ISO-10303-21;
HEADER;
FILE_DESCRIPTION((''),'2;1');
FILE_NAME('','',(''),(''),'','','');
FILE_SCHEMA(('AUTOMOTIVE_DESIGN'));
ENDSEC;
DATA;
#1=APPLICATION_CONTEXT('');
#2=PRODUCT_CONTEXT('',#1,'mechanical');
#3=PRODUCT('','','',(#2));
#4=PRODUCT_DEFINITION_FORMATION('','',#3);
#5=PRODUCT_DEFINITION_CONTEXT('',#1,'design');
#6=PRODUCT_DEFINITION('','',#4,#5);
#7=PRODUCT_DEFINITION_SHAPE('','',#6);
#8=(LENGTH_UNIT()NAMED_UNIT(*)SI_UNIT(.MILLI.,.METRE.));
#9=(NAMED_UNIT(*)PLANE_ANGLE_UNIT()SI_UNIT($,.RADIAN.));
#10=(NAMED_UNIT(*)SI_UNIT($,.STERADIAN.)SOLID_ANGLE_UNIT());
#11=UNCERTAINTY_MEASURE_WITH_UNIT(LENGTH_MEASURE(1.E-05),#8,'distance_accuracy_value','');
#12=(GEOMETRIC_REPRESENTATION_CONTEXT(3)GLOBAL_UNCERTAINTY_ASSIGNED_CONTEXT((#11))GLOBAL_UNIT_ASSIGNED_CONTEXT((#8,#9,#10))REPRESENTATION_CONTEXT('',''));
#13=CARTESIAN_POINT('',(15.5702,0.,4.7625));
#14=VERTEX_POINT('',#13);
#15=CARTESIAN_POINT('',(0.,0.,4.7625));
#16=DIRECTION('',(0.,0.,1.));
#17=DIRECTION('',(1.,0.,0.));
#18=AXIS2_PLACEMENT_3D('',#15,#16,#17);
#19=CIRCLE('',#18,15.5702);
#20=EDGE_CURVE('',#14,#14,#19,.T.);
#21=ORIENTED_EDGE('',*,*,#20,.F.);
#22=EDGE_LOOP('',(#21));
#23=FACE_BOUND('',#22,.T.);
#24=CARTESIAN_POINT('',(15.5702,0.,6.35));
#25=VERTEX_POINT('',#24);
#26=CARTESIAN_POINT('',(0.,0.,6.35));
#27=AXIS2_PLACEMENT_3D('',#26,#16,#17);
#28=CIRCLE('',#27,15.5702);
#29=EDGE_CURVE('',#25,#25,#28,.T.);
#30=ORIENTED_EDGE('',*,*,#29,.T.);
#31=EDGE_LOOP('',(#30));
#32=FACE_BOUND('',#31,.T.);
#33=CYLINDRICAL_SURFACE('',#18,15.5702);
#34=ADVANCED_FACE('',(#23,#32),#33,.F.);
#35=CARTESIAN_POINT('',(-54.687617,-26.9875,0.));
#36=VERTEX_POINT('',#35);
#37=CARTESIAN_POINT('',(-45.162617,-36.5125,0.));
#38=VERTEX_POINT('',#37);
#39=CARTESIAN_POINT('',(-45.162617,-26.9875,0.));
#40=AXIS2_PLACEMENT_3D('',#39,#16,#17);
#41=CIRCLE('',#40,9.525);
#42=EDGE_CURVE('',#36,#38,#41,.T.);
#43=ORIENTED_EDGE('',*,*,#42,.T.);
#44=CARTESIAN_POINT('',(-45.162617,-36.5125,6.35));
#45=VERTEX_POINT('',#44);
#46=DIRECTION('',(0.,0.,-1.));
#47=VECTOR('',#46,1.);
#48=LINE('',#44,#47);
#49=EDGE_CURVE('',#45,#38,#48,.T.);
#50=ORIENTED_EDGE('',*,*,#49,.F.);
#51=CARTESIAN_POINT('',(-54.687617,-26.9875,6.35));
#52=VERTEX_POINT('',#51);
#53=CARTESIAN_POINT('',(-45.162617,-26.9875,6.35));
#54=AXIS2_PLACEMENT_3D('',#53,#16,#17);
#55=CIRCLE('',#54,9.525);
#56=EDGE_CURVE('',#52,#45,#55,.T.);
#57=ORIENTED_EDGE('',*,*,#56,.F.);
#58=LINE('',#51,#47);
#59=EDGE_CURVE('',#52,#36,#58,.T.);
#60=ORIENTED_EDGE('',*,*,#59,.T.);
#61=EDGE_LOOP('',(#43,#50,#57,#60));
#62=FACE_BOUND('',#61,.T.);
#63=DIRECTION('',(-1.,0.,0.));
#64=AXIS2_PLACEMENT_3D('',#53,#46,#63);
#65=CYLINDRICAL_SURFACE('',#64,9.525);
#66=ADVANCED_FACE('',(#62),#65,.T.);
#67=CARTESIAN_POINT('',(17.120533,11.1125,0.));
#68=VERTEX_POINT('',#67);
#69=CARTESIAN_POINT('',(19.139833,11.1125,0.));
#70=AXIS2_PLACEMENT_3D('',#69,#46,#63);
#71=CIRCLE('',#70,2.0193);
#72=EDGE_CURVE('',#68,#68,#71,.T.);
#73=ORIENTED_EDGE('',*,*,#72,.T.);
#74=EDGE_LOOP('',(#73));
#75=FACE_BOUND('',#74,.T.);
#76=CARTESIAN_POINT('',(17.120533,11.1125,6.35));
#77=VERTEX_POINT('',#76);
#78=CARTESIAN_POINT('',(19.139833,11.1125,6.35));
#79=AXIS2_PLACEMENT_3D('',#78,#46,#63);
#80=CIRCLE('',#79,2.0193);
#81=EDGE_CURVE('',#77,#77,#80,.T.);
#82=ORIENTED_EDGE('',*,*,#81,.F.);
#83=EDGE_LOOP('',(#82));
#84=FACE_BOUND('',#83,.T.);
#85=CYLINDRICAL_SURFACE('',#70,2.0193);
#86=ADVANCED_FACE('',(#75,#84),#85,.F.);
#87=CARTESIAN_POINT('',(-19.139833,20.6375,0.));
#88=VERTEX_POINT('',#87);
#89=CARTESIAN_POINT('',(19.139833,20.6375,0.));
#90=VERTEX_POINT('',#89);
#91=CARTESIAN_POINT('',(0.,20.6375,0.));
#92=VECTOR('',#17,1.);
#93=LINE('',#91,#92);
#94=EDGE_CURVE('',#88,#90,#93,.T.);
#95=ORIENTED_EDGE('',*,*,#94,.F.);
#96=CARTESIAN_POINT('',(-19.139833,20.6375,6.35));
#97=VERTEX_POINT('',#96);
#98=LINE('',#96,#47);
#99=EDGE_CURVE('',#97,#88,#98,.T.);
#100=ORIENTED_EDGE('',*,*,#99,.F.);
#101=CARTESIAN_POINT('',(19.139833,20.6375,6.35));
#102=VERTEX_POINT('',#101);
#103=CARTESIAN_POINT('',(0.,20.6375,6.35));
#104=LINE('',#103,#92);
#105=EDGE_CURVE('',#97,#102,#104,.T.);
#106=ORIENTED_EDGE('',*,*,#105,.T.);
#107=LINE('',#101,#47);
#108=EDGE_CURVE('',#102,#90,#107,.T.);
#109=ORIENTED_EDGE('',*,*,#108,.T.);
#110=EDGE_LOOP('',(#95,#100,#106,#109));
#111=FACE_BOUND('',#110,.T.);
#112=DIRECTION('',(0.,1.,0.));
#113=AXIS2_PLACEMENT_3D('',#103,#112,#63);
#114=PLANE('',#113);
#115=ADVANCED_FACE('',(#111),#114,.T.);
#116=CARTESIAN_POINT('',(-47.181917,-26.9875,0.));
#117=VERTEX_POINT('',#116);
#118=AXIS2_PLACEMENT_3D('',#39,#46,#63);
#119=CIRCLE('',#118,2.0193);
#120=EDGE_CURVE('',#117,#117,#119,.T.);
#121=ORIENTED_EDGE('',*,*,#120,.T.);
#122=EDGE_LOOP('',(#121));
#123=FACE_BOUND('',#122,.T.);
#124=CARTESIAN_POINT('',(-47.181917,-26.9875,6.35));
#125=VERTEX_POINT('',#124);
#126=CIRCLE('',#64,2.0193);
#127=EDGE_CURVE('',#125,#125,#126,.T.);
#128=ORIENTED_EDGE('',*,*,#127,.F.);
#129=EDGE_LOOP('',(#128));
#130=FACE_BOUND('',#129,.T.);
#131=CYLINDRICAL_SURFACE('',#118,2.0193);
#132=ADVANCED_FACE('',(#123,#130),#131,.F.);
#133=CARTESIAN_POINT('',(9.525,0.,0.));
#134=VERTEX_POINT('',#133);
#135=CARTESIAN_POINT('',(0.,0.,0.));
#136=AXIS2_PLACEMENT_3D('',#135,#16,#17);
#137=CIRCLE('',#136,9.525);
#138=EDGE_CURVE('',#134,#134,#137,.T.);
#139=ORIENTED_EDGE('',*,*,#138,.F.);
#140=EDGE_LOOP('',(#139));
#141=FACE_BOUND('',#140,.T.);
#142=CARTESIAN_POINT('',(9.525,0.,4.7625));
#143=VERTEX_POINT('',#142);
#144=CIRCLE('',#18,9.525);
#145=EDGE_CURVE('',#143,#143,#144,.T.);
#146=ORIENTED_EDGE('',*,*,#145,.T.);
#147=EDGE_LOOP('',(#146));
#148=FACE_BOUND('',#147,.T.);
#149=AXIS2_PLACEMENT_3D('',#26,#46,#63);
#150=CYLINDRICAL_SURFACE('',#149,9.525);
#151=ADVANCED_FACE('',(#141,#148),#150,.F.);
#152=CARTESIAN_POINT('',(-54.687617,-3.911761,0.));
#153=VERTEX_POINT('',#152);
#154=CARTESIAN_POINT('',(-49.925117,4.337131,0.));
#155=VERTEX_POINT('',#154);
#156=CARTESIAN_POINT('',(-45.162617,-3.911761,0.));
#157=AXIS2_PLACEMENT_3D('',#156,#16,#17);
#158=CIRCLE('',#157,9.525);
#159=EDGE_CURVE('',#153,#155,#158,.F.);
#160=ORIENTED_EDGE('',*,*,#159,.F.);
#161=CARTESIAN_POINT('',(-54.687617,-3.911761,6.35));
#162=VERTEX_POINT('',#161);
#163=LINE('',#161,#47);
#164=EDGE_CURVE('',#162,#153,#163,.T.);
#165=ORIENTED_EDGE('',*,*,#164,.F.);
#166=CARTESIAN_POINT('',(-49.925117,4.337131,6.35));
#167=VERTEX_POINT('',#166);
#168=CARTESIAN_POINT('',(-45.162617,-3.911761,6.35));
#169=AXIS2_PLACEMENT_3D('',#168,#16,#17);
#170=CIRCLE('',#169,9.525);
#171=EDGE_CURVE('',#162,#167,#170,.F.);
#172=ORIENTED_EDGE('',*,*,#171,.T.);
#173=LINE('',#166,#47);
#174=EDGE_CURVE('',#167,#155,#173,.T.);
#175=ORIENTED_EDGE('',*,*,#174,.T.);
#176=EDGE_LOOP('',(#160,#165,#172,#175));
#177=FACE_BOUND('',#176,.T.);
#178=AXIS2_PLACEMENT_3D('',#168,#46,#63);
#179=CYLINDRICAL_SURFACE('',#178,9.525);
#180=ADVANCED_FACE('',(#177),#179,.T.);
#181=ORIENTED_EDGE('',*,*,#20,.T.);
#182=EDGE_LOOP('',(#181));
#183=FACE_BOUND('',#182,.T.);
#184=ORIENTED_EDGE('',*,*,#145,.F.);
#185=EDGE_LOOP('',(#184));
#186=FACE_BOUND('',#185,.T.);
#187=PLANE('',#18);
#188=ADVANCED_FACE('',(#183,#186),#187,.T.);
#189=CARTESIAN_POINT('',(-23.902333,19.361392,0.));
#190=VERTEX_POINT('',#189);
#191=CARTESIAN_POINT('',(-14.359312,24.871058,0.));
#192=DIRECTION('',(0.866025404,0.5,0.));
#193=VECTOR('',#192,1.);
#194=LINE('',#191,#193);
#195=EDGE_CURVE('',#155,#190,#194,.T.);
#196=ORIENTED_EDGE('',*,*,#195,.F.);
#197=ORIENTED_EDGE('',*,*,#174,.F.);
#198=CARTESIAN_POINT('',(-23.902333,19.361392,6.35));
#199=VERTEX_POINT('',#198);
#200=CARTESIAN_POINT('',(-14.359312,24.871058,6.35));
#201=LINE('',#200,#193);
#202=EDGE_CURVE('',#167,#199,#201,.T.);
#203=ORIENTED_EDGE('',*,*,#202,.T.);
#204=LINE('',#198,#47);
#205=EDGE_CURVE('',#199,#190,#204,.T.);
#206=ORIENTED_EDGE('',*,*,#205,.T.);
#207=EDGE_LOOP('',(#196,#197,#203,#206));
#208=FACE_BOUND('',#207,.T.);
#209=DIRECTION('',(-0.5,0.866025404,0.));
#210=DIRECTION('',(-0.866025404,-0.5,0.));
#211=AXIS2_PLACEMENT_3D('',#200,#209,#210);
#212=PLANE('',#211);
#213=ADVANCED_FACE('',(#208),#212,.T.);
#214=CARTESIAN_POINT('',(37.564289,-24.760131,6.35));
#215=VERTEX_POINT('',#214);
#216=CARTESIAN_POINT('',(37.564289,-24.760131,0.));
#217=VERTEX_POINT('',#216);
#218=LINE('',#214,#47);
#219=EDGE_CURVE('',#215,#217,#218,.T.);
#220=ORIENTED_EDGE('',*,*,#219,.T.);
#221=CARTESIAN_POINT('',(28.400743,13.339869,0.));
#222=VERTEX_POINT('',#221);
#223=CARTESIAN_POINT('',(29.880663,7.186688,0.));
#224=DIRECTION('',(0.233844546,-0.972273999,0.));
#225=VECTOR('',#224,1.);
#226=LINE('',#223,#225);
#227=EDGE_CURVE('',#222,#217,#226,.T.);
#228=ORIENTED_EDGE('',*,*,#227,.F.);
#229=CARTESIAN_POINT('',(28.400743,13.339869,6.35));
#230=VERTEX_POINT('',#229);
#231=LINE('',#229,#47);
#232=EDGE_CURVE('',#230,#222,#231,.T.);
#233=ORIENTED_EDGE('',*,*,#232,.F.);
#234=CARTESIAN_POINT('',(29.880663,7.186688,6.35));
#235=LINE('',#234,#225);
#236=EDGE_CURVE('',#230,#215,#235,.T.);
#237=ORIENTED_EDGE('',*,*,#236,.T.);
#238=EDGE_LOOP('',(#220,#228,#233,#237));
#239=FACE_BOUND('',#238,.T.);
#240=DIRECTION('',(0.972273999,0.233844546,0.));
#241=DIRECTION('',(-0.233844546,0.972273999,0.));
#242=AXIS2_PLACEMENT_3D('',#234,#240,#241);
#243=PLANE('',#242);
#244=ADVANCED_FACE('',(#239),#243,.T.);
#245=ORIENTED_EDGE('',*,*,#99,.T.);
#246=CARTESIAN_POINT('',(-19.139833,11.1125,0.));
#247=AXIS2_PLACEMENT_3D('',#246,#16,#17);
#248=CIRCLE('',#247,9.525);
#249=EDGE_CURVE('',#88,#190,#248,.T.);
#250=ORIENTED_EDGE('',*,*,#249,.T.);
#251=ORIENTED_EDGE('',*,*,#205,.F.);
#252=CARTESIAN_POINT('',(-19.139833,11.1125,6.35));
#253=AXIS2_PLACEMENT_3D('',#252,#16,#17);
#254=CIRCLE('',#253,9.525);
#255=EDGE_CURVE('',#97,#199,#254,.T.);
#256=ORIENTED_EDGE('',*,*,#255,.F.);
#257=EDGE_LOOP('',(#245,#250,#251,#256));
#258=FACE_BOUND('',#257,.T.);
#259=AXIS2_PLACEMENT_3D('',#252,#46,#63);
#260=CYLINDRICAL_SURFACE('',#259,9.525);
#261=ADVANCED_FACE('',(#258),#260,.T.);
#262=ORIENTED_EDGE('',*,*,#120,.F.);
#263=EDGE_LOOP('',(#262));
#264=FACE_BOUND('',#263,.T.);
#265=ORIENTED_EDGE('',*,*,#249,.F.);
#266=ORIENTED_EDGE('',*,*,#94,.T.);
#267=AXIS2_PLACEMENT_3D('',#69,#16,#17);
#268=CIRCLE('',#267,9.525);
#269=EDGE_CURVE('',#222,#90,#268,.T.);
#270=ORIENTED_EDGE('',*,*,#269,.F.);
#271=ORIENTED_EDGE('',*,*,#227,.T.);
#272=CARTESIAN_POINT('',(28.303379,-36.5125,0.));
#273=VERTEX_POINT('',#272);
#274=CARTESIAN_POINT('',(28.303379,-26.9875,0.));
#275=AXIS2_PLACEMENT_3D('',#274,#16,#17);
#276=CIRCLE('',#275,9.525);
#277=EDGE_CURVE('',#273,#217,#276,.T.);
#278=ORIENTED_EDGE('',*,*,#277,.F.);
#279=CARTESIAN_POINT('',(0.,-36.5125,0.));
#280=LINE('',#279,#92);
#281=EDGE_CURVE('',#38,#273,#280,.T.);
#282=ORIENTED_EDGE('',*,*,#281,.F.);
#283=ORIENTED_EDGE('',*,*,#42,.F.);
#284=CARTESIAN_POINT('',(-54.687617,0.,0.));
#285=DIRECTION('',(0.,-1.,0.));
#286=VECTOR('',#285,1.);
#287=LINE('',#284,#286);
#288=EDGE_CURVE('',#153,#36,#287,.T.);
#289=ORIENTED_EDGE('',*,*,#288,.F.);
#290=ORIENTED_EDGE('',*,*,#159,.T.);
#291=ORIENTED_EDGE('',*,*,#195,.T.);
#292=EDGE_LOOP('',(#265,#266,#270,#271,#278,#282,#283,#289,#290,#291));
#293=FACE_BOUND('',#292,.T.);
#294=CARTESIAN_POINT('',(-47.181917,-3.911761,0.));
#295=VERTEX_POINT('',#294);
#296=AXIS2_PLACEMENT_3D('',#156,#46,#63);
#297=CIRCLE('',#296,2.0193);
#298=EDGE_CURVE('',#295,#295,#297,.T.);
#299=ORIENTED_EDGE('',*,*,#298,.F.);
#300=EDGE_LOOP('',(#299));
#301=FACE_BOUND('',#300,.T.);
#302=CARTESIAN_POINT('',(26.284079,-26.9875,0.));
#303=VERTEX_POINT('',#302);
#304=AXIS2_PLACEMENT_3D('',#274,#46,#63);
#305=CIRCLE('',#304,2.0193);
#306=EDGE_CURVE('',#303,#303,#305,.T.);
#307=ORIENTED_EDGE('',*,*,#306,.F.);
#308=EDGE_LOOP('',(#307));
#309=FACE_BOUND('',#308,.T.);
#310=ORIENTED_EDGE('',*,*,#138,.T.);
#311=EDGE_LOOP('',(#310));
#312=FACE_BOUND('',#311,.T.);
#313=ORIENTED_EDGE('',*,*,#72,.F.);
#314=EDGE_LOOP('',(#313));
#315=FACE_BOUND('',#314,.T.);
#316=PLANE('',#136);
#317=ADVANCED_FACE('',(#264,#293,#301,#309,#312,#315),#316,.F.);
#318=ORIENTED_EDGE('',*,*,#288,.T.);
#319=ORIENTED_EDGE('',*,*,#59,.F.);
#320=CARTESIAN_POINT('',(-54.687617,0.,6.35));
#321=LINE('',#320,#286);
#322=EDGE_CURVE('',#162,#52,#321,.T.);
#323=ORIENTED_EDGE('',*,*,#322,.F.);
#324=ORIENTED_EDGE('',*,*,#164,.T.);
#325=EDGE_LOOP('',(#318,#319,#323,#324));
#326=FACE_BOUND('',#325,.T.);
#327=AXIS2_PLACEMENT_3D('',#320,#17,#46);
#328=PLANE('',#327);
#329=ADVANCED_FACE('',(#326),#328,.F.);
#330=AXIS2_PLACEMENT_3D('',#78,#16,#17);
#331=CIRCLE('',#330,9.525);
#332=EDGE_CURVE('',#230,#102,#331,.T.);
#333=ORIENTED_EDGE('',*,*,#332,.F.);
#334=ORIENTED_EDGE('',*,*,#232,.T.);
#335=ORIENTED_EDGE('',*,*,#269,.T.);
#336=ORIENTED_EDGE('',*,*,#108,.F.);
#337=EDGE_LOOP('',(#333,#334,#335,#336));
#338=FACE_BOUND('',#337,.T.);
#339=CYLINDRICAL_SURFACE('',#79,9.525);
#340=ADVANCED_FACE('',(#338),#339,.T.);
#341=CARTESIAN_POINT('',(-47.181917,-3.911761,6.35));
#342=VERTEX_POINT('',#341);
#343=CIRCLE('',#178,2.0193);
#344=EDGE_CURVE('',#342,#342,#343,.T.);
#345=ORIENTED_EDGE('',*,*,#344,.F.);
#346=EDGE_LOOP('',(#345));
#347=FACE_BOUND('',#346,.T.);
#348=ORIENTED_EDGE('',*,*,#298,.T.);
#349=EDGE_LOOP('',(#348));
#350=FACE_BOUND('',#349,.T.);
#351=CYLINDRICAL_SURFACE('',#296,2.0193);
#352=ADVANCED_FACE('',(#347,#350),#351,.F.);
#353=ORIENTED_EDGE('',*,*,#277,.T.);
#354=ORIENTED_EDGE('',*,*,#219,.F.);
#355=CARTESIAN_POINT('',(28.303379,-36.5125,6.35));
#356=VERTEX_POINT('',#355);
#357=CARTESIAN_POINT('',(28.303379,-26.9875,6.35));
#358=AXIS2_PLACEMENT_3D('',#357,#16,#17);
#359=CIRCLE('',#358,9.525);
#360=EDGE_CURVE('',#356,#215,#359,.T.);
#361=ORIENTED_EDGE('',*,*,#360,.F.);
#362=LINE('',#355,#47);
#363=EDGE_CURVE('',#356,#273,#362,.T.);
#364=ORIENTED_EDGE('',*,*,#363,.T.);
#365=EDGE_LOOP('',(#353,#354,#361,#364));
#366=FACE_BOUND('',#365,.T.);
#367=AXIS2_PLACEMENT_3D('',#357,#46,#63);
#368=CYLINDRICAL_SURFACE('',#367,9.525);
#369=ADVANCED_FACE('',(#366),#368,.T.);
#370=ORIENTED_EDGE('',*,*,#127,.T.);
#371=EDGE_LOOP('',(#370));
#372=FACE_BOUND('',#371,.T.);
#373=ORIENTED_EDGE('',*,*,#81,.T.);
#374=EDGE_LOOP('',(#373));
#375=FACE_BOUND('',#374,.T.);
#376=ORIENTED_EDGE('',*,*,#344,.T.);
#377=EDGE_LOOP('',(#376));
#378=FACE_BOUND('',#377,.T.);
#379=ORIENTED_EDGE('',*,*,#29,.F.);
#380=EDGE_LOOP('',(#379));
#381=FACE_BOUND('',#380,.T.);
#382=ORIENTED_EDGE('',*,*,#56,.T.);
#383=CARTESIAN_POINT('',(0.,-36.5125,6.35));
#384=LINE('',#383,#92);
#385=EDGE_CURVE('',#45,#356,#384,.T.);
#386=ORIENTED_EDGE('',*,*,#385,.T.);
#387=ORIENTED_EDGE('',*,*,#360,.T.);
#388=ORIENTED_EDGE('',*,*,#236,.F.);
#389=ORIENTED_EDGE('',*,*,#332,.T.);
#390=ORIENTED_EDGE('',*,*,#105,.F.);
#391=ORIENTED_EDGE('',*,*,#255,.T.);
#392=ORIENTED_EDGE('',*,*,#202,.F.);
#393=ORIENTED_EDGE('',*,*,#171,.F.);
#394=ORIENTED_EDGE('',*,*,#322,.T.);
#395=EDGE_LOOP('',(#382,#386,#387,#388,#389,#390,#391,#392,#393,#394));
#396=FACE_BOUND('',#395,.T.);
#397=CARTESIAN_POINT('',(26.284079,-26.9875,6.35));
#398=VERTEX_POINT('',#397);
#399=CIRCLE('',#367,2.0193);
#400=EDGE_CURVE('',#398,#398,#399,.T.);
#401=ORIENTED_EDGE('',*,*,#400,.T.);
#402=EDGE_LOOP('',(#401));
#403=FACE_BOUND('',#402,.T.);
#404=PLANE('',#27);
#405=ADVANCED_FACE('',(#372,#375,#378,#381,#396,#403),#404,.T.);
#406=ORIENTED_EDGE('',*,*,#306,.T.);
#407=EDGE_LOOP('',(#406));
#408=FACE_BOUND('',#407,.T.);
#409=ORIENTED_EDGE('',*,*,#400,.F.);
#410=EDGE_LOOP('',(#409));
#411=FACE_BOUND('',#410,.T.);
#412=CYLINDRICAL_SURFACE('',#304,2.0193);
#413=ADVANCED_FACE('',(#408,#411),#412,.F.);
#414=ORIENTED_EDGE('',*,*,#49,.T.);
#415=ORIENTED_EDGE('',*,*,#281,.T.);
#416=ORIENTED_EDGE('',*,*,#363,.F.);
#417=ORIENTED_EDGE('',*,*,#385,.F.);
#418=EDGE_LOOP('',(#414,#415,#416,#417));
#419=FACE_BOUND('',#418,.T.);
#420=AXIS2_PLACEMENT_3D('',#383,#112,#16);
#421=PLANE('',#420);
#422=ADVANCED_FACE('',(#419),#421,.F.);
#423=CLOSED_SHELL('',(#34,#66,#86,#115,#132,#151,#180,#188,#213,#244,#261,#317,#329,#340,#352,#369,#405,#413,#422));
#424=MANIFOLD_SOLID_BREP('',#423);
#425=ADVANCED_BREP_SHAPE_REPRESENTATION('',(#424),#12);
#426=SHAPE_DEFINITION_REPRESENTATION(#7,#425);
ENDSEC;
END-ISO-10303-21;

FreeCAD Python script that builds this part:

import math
import FreeCAD as App
import Part
import Sketcher

V = App.Vector
Q = App.Units.Quantity

doc = App.newDocument("Part")
body = doc.addObject("PartDesign::Body", "Body")

sketch1 = body.newObject("Sketcher::SketchObject", "Sketch")
sketch1.AttachmentSupport = (doc.getObject("XY_Plane"), [""])
sketch1.MapMode = "FlatFace"
sketch1.addGeometry([
    Part.LineSegment(V(-45.2, -36.5, 0), V(28.3, -36.5, 0)),
    Part.ArcOfCircle(Part.Circle(V(28.3, -27, 0), V(0, 0, 1), 9.5), math.radians(-90), math.radians(14)),
    Part.LineSegment(V(37.6, -24.8, 0), V(28.4, 13.3, 0)),
    Part.ArcOfCircle(Part.Circle(V(19.1, 11.1, 0), V(0, 0, 1), 9.5), math.radians(14), math.radians(90)),
    Part.LineSegment(V(19.1, 20.6, 0), V(-19.1, 20.6, 0)),
    Part.ArcOfCircle(Part.Circle(V(-19.1, 11.1, 0), V(0, 0, 1), 9.5), math.radians(90), math.radians(120)),
    Part.LineSegment(V(-23.9, 19.4, 0), V(-49.9, 4.3, 0)),
    Part.ArcOfCircle(Part.Circle(V(-45.2, -3.9, 0), V(0, 0, 1), 9.5), math.radians(120), math.radians(180)),
    Part.LineSegment(V(-54.7, -3.9, 0), V(-54.7, -27, 0)),
    Part.ArcOfCircle(Part.Circle(V(-45.2, -27, 0), V(0, 0, 1), 9.5), math.radians(180), math.radians(270)),
    Part.Circle(V(0, 0, 0), V(0, 0, 1), 9.5),
], False)
sketch1.addConstraint([
    Sketcher.Constraint("Tangent", 0, 2, 1, 1),
    Sketcher.Constraint("Tangent", 1, 2, 2, 1),
    Sketcher.Constraint("Tangent", 2, 2, 3, 1),
    Sketcher.Constraint("Tangent", 3, 2, 4, 1),
    Sketcher.Constraint("Tangent", 4, 2, 5, 1),
    Sketcher.Constraint("Tangent", 5, 2, 6, 1),
    Sketcher.Constraint("Tangent", 6, 2, 7, 1),
    Sketcher.Constraint("Tangent", 7, 2, 8, 1),
    Sketcher.Constraint("Tangent", 8, 2, 9, 1),
    Sketcher.Constraint("Tangent", 9, 2, 0, 1),
    Sketcher.Constraint("Horizontal", 0),
    Sketcher.Constraint("Horizontal", 4),
    Sketcher.Constraint("Vertical", 8),
    Sketcher.Constraint("Coincident", 10, 3, -1, 1),
    Sketcher.Constraint("Equal", 1, 3),
    Sketcher.Constraint("Equal", 3, 5),
    Sketcher.Constraint("Equal", 5, 7),
    Sketcher.Constraint("Equal", 7, 9),
    Sketcher.Constraint("Equal", 9, 10),
    Sketcher.Constraint("Diameter", 10, Q("0.75 in")),
    Sketcher.Constraint("Angle", 6, Q("-150 deg")),
    Sketcher.Constraint("DistanceY", 1, 3, 3, 3, Q("1.5 in")),
    Sketcher.Constraint("DistanceY", 1, 3, -1, 1, Q("1.0625 in")),
    Sketcher.Constraint("DistanceY", 8, 2, 8, 1, Q("23.075739 mm")),
    Sketcher.Constraint("DistanceX", 0, 1, 0, 2, Q("73.465996 mm")),
    Sketcher.Constraint("DistanceX", 4, 2, 4, 1, Q("38.279666 mm")),
    Sketcher.Constraint("DistanceX", -1, 1, 1, 3, Q("28.303379 mm")),
])
pad1 = body.newObject("PartDesign::Pad", "Pad")
pad1.Profile = sketch1
pad1.Length = Q("0.25 in")

sketch2 = body.newObject("Sketcher::SketchObject", "Sketch001")
sketch2.AttachmentSupport = (doc.getObject("XY_Plane"), [""])
sketch2.MapMode = "FlatFace"
sketch2.AttachmentOffset = App.Placement(V(0, 0, 0.25 * 25.4), App.Rotation())
sketch2.addGeometry(Part.Circle(V(0, 0, 0), V(0, 0, 1), 16), False)
sketch2.addConstraint([
    Sketcher.Constraint("Coincident", 0, 3, -1, 1),
    Sketcher.Constraint("Diameter", 0, Q("1.226 in")),
])
pocket1 = body.newObject("PartDesign::Pocket", "Pocket")
pocket1.Profile = sketch2
pocket1.Length = Q("0.0625 in")

sketch3 = body.newObject("Sketcher::SketchObject", "Sketch002")
sketch3.AttachmentSupport = (doc.getObject("XY_Plane"), [""])
sketch3.MapMode = "FlatFace"
sketch3.addGeometry([
    Part.Circle(V(28.3, -27, 0), V(0, 0, 1), 2),
    Part.Circle(V(19.1, 11.1, 0), V(0, 0, 1), 2),
    Part.Circle(V(-45.2, -3.9, 0), V(0, 0, 1), 2),
    Part.Circle(V(-45.2, -27, 0), V(0, 0, 1), 2),
], False)
sketch3.addConstraint([
    Sketcher.Constraint("Equal", 0, 1),
    Sketcher.Constraint("Equal", 1, 2),
    Sketcher.Constraint("Equal", 2, 3),
    Sketcher.Constraint("Horizontal", 0, 3, 3, 3),
    Sketcher.Constraint("Vertical", 2, 3, 3, 3),
    Sketcher.Constraint("Diameter", 0, Q("0.159 in")),
    Sketcher.Constraint("DistanceY", 0, 3, 1, 3, Q("1.5 in")),
    Sketcher.Constraint("DistanceY", 0, 3, -1, 1, Q("1.0625 in")),
    Sketcher.Constraint("DistanceX", -1, 1, 0, 3, Q("28.303379 mm")),
    Sketcher.Constraint("DistanceY", 2, 3, -1, 1, Q("3.911761 mm")),
    Sketcher.Constraint("DistanceX", 2, 3, 1, 3, Q("64.30245 mm")),
    Sketcher.Constraint("DistanceX", -1, 1, 1, 3, Q("19.139833 mm")),
])
doc.recompute()
hole = body.newObject("PartDesign::Hole", "Hole")
hole.Profile = sketch3
hole.ThreadType = "None"
hole.Diameter = Q("0.159 in")
hole.DepthType = "ThroughAll"
hole.Reversed = True

doc.recompute()
